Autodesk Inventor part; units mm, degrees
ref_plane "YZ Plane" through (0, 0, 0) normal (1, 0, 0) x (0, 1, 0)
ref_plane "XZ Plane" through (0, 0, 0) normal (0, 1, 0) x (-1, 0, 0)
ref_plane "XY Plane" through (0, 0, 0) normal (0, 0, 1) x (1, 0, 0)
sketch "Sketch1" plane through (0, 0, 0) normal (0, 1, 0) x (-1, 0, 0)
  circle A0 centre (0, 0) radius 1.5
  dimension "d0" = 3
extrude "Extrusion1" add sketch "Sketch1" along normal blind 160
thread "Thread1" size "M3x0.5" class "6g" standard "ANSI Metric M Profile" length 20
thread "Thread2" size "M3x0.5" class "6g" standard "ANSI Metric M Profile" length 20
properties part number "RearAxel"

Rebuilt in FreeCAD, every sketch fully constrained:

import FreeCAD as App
import Part
import Sketcher
from FreeCAD import Vector

doc = App.newDocument("Part")
body = doc.addObject("PartDesign::Body", "Body")

# Sketch on XZ plane
sketch1 = body.newObject("Sketcher::SketchObject", "Sketch")
sketch1.AttachmentSupport = (doc.getObject("XZ_Plane"), [""])
sketch1.MapMode = "FlatFace"
sketch1.addGeometry(Part.Circle(Vector(0, 0, 0), Vector(0, 0, 1), 1.5), False)
sketch1.addConstraint([
    Sketcher.Constraint("Coincident", 0, 3, -1, 1),
    Sketcher.Constraint("Diameter", 0, 3.0),
])
pad1 = body.newObject("PartDesign::Pad", "Pad")
pad1.Profile = sketch1
pad1.Length = 160
pad1.Reversed = True

doc.recompute()
